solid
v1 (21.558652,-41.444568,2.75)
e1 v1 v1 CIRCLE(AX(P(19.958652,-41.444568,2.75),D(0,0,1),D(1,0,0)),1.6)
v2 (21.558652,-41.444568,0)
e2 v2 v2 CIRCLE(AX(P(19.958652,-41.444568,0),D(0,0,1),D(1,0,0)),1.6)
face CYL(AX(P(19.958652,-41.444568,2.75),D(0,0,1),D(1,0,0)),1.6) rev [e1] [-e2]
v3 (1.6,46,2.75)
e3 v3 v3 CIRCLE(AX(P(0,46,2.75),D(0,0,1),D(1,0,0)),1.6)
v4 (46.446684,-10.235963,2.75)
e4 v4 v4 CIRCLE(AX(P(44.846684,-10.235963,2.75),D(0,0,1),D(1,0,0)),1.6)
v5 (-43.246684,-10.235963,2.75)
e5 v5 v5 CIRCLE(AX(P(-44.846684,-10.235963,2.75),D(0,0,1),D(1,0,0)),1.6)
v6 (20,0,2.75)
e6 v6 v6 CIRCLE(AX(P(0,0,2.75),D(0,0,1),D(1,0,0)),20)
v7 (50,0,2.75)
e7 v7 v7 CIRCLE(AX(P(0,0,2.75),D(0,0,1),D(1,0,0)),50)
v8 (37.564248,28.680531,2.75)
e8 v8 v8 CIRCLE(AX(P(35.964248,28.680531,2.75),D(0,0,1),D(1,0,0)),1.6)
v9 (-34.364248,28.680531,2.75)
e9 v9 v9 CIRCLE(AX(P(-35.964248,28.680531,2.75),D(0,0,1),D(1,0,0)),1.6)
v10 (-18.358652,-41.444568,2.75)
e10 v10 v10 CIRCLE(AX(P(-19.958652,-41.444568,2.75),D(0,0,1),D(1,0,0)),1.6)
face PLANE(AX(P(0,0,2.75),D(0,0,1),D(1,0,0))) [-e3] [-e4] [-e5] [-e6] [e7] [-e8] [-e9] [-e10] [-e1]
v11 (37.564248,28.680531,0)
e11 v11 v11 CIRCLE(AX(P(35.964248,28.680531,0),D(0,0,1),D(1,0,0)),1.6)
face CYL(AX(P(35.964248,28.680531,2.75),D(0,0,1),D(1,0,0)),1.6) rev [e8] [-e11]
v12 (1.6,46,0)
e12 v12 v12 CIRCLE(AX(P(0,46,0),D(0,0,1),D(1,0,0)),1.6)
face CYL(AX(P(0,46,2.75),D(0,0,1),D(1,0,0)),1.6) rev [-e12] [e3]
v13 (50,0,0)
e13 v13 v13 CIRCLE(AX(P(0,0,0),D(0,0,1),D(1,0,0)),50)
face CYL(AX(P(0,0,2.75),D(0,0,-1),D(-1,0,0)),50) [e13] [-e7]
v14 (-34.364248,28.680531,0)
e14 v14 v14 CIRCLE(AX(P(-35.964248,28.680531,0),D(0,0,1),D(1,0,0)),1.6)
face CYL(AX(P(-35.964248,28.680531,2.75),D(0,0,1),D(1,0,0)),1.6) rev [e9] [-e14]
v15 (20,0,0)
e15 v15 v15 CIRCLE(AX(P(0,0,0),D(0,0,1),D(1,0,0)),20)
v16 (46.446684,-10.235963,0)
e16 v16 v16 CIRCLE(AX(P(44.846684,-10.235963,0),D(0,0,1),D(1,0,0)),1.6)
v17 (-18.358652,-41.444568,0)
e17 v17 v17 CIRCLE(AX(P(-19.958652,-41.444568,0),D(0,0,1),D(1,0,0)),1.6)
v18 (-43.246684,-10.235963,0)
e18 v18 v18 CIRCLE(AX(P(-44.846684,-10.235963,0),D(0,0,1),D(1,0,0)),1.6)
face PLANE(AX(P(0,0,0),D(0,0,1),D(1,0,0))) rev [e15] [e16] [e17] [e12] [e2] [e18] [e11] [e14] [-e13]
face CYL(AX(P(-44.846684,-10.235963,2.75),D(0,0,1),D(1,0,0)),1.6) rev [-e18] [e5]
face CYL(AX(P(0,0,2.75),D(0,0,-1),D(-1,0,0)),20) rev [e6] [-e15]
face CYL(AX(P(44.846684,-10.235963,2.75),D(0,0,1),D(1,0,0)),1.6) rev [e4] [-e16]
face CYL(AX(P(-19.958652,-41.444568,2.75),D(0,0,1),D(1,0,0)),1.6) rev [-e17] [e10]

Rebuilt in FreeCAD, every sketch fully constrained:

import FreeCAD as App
import Part
import Sketcher
from FreeCAD import Vector

doc = App.newDocument("Part")
body = doc.addObject("PartDesign::Body", "Body")

sketch1 = doc.addObject("Sketcher::SketchObject", "Sketch")
body.addObject(sketch1)
sketch1.AttachmentSupport = (doc.XY_Plane, [""])
sketch1.MapMode = "FlatFace"
sketch1.addGeometry([
    Part.Circle(Vector(0, 0, 0), Vector(0, 0, 1), 50),
    Part.Circle(Vector(0, 0, 0), Vector(0, 0, 1), 20),
], False)
sketch1.addConstraint([
    Sketcher.Constraint("Coincident", 0, 3, -1, 1),
    Sketcher.Constraint("Coincident", 1, 3, -1, 1),
    Sketcher.Constraint("Diameter", 0, 100.0),
    Sketcher.Constraint("Diameter", 1, 40.0),
])
pad1 = doc.addObject("PartDesign::Pad", "Pad")
body.addObject(pad1)
pad1.Profile = sketch1
pad1.Length = 2.75

sketch2 = doc.addObject("Sketcher::SketchObject", "Sketch001")
body.addObject(sketch2)
sketch2.AttachmentSupport = (doc.XY_Plane, [""])
sketch2.MapMode = "FlatFace"
sketch2.AttachmentOffset = App.Placement(Vector(0, 0, 2.75), App.Rotation())
sketch2.addGeometry(Part.Circle(Vector(0, 46, 0), Vector(0, 0, 1), 1.6), False)
sketch2.addConstraint([
    Sketcher.Constraint("PointOnObject", 0, 3, -2),
    Sketcher.Constraint("Diameter", 0, 3.2),
    Sketcher.Constraint("DistanceY", -1, 1, 0, 3, 46.0),
])
doc.recompute()
hole = doc.addObject("PartDesign::Hole", "Hole")
body.addObject(hole)
hole.Profile = sketch2
hole.ThreadType = "None"
hole.Diameter = 3.2
hole.DepthType = "ThroughAll"
doc.recompute()

polarpattern = doc.addObject("PartDesign::PolarPattern", "PolarPattern")
body.addObject(polarpattern)
polarpattern.Originals = [hole]
polarpattern.Axis = (doc.Z_Axis, [""])
polarpattern.Angle = 360
polarpattern.Occurrences = 7
body.Tip = polarpattern

doc.recompute()
